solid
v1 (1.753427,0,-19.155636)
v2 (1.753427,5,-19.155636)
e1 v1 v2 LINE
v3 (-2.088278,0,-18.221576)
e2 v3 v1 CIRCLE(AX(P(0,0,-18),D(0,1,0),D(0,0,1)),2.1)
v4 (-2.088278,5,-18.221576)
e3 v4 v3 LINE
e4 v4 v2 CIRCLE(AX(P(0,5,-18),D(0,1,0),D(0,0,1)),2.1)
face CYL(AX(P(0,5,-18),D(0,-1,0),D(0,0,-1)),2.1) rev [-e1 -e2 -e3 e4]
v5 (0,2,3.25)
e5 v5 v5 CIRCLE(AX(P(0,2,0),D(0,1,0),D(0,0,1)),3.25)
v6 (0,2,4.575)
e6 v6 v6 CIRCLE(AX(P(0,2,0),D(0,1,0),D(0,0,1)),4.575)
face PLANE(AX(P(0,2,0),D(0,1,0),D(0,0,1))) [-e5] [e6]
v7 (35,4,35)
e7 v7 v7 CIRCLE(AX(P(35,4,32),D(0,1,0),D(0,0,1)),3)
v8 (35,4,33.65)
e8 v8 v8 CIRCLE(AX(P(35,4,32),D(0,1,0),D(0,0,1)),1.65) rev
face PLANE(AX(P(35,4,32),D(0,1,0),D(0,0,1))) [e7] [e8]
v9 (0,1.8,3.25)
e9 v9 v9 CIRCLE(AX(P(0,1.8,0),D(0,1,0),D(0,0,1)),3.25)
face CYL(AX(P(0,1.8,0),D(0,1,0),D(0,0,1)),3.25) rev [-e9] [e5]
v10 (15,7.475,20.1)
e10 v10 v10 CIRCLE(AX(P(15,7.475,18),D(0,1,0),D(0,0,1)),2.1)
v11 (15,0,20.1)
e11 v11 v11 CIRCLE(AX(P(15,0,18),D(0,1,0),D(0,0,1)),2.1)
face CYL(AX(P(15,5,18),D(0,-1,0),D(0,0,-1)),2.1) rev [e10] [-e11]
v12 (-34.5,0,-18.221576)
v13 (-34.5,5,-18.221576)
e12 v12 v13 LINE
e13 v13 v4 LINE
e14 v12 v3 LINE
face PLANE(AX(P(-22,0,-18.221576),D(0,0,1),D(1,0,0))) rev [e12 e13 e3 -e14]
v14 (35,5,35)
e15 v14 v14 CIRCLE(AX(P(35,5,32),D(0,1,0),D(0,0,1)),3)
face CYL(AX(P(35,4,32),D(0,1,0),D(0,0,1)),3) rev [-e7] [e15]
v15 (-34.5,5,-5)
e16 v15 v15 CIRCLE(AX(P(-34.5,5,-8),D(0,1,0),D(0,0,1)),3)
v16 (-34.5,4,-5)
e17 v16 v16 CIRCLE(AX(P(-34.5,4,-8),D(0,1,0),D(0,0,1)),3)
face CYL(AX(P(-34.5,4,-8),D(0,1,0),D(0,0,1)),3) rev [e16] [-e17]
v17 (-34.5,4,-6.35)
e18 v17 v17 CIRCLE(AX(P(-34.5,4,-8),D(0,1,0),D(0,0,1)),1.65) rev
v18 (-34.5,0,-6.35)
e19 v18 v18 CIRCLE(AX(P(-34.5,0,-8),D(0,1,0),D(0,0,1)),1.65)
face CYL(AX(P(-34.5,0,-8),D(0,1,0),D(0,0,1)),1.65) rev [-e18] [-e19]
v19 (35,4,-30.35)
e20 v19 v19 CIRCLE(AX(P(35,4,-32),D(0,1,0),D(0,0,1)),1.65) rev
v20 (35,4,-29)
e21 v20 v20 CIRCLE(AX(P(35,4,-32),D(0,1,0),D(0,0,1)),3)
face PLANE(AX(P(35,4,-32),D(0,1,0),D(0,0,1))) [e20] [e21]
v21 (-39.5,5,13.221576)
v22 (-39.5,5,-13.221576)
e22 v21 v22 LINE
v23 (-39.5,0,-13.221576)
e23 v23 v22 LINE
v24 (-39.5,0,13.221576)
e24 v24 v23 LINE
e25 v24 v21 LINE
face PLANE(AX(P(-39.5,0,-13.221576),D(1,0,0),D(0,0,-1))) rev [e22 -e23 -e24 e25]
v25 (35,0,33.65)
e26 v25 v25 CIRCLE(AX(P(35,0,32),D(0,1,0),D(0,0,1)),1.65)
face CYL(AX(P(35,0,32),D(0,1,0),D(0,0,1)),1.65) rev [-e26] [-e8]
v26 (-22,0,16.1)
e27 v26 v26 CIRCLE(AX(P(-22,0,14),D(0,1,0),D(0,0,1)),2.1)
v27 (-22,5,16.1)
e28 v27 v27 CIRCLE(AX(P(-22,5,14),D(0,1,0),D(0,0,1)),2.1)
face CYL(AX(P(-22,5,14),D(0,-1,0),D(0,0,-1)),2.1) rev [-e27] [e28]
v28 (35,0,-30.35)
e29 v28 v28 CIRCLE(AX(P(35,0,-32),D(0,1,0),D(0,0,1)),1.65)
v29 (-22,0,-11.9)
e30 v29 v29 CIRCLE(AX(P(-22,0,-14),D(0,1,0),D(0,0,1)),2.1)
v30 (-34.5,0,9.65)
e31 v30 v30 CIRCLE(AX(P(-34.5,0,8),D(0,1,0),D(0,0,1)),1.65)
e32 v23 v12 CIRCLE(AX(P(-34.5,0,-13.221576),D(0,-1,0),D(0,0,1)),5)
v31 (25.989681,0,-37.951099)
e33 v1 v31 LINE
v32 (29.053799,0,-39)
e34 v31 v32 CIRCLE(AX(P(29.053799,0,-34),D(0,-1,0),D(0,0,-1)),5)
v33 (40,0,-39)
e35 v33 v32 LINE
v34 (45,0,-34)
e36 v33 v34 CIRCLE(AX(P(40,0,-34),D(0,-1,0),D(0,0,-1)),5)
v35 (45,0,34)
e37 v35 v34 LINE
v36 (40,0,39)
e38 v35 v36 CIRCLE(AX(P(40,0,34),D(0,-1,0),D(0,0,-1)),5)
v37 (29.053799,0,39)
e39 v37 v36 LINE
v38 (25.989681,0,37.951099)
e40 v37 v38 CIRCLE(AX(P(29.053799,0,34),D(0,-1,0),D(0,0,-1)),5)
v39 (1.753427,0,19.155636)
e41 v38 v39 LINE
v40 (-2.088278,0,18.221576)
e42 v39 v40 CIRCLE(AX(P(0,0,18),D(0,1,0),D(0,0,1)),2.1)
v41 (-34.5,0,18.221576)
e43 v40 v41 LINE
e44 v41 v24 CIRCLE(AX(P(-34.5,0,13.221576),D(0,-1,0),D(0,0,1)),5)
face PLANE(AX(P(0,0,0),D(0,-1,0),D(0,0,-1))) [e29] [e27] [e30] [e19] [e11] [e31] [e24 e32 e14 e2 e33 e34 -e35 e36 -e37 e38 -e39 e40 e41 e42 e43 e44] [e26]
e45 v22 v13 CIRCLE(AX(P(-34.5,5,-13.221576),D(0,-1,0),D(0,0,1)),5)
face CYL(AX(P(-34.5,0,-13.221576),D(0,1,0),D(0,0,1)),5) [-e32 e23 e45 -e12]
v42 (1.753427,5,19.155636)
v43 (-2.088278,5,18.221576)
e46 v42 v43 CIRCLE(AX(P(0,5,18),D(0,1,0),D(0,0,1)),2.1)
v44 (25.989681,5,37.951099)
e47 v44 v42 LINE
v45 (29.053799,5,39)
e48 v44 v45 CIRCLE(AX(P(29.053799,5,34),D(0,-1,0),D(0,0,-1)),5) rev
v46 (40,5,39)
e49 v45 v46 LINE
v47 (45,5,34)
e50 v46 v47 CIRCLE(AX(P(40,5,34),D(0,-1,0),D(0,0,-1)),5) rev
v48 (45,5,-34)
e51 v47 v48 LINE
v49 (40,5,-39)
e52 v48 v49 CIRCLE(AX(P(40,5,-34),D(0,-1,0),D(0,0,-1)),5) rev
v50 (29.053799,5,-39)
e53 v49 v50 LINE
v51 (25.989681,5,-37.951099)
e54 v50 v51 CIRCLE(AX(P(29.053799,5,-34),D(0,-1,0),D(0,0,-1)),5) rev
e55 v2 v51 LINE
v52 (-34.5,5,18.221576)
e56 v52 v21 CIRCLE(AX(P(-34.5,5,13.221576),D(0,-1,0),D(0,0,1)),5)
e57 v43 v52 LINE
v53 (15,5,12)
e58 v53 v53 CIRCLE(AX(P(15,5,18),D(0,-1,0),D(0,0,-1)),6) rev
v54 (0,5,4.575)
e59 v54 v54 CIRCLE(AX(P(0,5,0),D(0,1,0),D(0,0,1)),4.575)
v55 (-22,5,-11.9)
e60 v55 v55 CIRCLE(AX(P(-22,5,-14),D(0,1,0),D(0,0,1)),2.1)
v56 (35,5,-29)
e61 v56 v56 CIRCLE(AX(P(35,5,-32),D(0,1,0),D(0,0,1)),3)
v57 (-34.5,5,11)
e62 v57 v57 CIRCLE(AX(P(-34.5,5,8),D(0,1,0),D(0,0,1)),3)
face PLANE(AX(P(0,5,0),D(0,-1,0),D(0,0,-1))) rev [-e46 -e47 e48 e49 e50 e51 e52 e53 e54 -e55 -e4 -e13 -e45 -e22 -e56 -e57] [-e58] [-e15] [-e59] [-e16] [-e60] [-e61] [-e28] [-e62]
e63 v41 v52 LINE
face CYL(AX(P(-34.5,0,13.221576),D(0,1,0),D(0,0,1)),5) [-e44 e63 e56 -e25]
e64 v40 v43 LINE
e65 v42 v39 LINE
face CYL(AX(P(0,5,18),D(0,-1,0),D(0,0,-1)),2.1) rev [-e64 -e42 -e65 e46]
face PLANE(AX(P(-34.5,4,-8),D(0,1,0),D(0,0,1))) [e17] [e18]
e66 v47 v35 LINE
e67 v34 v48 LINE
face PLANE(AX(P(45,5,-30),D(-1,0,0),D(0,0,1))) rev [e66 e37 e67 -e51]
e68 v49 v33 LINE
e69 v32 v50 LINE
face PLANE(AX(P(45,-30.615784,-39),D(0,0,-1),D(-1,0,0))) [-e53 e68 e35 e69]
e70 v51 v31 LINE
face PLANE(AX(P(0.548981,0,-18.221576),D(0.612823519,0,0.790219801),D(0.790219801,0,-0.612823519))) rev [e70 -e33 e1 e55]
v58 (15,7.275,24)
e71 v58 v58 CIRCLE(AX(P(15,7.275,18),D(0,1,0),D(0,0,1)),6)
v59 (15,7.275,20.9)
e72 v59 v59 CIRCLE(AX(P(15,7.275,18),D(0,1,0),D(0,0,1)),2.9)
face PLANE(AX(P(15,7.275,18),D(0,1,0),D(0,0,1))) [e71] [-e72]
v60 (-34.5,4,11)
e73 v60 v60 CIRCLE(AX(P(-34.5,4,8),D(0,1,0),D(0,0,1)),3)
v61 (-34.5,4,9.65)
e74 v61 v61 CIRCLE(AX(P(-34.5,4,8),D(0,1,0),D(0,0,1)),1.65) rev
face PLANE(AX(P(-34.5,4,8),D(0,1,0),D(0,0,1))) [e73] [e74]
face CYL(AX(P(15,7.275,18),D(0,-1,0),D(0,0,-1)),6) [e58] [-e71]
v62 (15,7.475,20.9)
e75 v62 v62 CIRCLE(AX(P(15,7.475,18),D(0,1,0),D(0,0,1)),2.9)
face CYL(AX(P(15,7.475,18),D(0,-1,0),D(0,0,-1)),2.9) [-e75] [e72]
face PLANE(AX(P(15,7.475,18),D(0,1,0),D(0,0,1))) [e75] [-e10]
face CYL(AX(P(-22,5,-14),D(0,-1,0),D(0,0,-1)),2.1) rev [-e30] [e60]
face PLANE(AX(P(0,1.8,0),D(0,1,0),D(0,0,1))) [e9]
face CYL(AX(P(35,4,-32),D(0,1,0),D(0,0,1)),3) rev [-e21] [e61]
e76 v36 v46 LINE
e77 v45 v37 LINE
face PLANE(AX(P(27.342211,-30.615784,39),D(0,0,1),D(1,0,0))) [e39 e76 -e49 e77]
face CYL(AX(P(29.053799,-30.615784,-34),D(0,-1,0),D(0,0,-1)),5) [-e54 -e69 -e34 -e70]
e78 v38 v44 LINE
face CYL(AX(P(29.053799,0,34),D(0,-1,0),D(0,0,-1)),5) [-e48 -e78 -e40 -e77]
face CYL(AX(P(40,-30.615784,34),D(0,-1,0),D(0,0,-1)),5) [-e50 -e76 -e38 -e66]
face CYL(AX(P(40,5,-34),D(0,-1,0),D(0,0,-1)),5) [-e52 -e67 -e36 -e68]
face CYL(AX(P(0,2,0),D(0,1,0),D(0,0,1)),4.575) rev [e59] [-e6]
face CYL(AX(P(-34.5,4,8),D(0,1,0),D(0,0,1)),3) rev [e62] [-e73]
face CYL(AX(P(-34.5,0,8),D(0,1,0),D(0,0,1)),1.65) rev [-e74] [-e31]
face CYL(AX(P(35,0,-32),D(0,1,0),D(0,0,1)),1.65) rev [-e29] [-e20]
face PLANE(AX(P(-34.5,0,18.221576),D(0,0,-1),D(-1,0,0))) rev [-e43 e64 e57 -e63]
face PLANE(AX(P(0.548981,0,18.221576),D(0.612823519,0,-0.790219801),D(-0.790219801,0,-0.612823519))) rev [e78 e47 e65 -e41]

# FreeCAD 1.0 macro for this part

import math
import FreeCAD as App
import Part
import Sketcher
from FreeCAD import Vector


def edges_at(feature, points):
    """Names of the edges that pass closest to the given points."""
    edges = feature.Shape.Edges
    near = lambda p: min(range(len(edges)), key=lambda i: edges[i].distToShape(Part.Vertex(*p))[0])
    return sorted({f"Edge{near(p) + 1}" for p in points})


def add_polygon(sketch, points):
    """Adds a closed chain of lines whose ends are joined by coincident constraints."""
    first, n = sketch.GeometryCount, len(points)
    for a, b in zip(points, points[1:] + points[:1]):
        sketch.addGeometry(Part.LineSegment(App.Vector(*a, 0), App.Vector(*b, 0)), False)
    for i in range(n):
        sketch.addConstraint(Sketcher.Constraint("Coincident", first + i, 2, first + (i + 1) % n, 1))

doc = App.newDocument("Part")
body = doc.addObject("PartDesign::Body", "Body")

# Sketch on XZ plane
sketch1 = body.newObject("Sketcher::SketchObject", "Sketch")
sketch1.AttachmentSupport = (doc.getObject("XZ_Plane"), [""])
sketch1.MapMode = "FlatFace"
add_polygon(sketch1, [(-70, -30), (-70, 30), (45, 30), (45, -30)])  # lines 0-3
sketch1.addGeometry(Part.Circle(Vector(-22, 14, 0), Vector(0, 0, 1), 2.1), False)  # 4
sketch1.addGeometry(Part.Circle(Vector(0, 18, 0), Vector(0, 0, 1), 2.1), False)  # 5
sketch1.addGeometry(Part.Circle(Vector(15, 18, 0), Vector(0, 0, 1), 2.1), False)  # 6
sketch1.addGeometry(Part.Circle(Vector(-22, -14, 0), Vector(0, 0, 1), 2.1), False)  # 7
sketch1.addGeometry(Part.Circle(Vector(0, -18, 0), Vector(0, 0, 1), 2.1), False)  # 8
sketch1.addConstraint(Sketcher.Constraint("Vertical", 0))
sketch1.addConstraint(Sketcher.Constraint("Horizontal", 1))
sketch1.addConstraint(Sketcher.Constraint("Vertical", 2))
sketch1.addConstraint(Sketcher.Constraint("Horizontal", 3))
sketch1.addConstraint(Sketcher.Constraint("Equal", 4, 5))
sketch1.addConstraint(Sketcher.Constraint("Equal", 5, 6))
sketch1.addConstraint(Sketcher.Constraint("Equal", 6, 7))
sketch1.addConstraint(Sketcher.Constraint("Equal", 7, 8))
sketch1.addConstraint(Sketcher.Constraint("Symmetric", 5, 3, 8, 3, -1, 1))
sketch1.addConstraint(Sketcher.Constraint("Symmetric", 4, 3, 7, 3, -1))
sketch1.addConstraint(Sketcher.Constraint("PointOnObject", 5, 3, -2))
sketch1.addConstraint(Sketcher.Constraint("Horizontal", 5, 3, 6, 3))
sketch1.addConstraint(Sketcher.Constraint("Diameter", 4, 4.2))
sketch1.addConstraint(Sketcher.Constraint("DistanceX", 1, 1, 1, 2, 115.0))
sketch1.addConstraint(Sketcher.Constraint("DistanceY", 0, 1, 0, 2, 60.0))
sketch1.addConstraint(Sketcher.Constraint("DistanceX", 4, 3, -1, 1, 22.0))
sketch1.addConstraint(Sketcher.Constraint("DistanceY", -1, 1, 4, 3, 14.0))
sketch1.addConstraint(Sketcher.Constraint("DistanceY", -1, 1, 5, 3, 18.0))
sketch1.addConstraint(Sketcher.Constraint("DistanceX", -1, 1, 6, 3, 15.0))
sketch1.addConstraint(Sketcher.Constraint("DistanceX", 0, 2, -1, 1, 70.0))
sketch1.addConstraint(Sketcher.Constraint("DistanceY", -1, 1, 0, 2, 30.0))
pad1 = body.newObject("PartDesign::Pad", "Pad")
pad1.Profile = sketch1
pad1.Length = 5
pad1.Reversed = True

# Sketch on XZ plane
sketch2 = body.newObject("Sketcher::SketchObject", "Sketch001")
sketch2.AttachmentSupport = (doc.getObject("XZ_Plane"), [""])
sketch2.MapMode = "FlatFace"
sketch2.AttachmentOffset = App.Placement(Vector(0, 0, -5), App.Rotation())
sketch2.addGeometry(Part.Circle(Vector(0, 0, 0), Vector(0, 0, 1), 4.575), False)
sketch2.addConstraint(Sketcher.Constraint("Coincident", 0, 3, -1, 1))
sketch2.addConstraint(Sketcher.Constraint("Diameter", 0, 9.15))
pocket1 = body.newObject("PartDesign::Pocket", "Pocket")
pocket1.Profile = sketch2
pocket1.Length = 3
pocket1.Reversed = True

# Sketch on XZ plane
sketch3 = body.newObject("Sketcher::SketchObject", "Sketch002")
sketch3.AttachmentSupport = (doc.getObject("XZ_Plane"), [""])
sketch3.MapMode = "FlatFace"
sketch3.AttachmentOffset = App.Placement(Vector(0, 0, -2), App.Rotation())
sketch3.addGeometry(Part.Circle(Vector(0, 0, 0), Vector(0, 0, 1), 3.25), False)
sketch3.addConstraint(Sketcher.Constraint("Coincident", 0, 3, -1, 1))
sketch3.addConstraint(Sketcher.Constraint("Diameter", 0, 6.5))
pocket2 = body.newObject("PartDesign::Pocket", "Pocket001")
pocket2.Profile = sketch3
pocket2.Length = 0.2
pocket2.Reversed = True

# Sketch on XZ plane
sketch4 = body.newObject("Sketcher::SketchObject", "Sketch003")
sketch4.AttachmentSupport = (doc.getObject("XZ_Plane"), [""])
sketch4.MapMode = "FlatFace"
sketch4.AttachmentOffset = App.Placement(Vector(0, 0, -5), App.Rotation())
sketch4.addGeometry(Part.Circle(Vector(-34.5, 8, 0), Vector(0, 0, 1), 1.65), False)
sketch4.addGeometry(Part.Circle(Vector(-34.5, -8, 0), Vector(0, 0, 1), 1.65), False)
sketch4.addConstraint(Sketcher.Constraint("Equal", 0, 1))
sketch4.addConstraint(Sketcher.Constraint("Symmetric", 0, 3, 1, 3, -1))
sketch4.addConstraint(Sketcher.Constraint("Diameter", 0, 3.3))
sketch4.addConstraint(Sketcher.Constraint("DistanceY", -1, 1, 0, 3, 8.0))
sketch4.addConstraint(Sketcher.Constraint("DistanceX", 0, 3, -1, 1, 34.5))
pocket3 = body.newObject("PartDesign::Pocket", "Pocket002")
pocket3.Profile = sketch4
pocket3.Type = "ThroughAll"
pocket3.Reversed = True

# Sketch on XZ plane
sketch5 = body.newObject("Sketcher::SketchObject", "Sketch004")
sketch5.AttachmentSupport = (doc.getObject("XZ_Plane"), [""])
sketch5.MapMode = "FlatFace"
sketch5.AttachmentOffset = App.Placement(Vector(0, 0, -5), App.Rotation())
sketch5.addGeometry(Part.ArcOfCircle(Part.Circle(Vector(-34.5, -13.221576, 0), Vector(0, 0, 1), 5), math.radians(180), math.radians(270)), False)
sketch5.addGeometry(Part.LineSegment(Vector(-34.5, -18.221576, 0), Vector(0.548981, -18.221576, 0)), False)
sketch5.addGeometry(Part.LineSegment(Vector(0.548981, -18.221576, 0), Vector(26.801199, -38.58044, 0)), False)
sketch5.addGeometry(Part.LineSegment(Vector(26.801199, -38.58044, 0), Vector(-22, -30, 0)), False)
sketch5.addGeometry(Part.LineSegment(Vector(-22, -30, 0), Vector(-70, -30, 0)), False)
sketch5.addGeometry(Part.LineSegment(Vector(-70, -30, 0), Vector(-70, 30, 0)), False)
sketch5.addGeometry(Part.LineSegment(Vector(-70, 30, 0), Vector(-22, 30, 0)), False)
sketch5.addGeometry(Part.LineSegment(Vector(-22, 30, 0), Vector(26.801199, 38.58044, 0)), False)
sketch5.addGeometry(Part.LineSegment(Vector(26.801199, 38.58044, 0), Vector(0.548981, 18.221576, 0)), False)
sketch5.addGeometry(Part.LineSegment(Vector(0.548981, 18.221576, 0), Vector(-34.5, 18.221576, 0)), False)
sketch5.addGeometry(Part.ArcOfCircle(Part.Circle(Vector(-34.5, 13.221576, 0), Vector(0, 0, 1), 5), math.radians(90), math.radians(180)), False)
sketch5.addGeometry(Part.LineSegment(Vector(-39.5, 13.221576, 0), Vector(-39.5, -13.221576, 0)), False)
sketch5.addConstraint(Sketcher.Constraint("Tangent", 0, 2, 1, 1))
sketch5.addConstraint(Sketcher.Constraint("Coincident", 1, 2, 2, 1))
sketch5.addConstraint(Sketcher.Constraint("Coincident", 2, 2, 3, 1))
sketch5.addConstraint(Sketcher.Constraint("Coincident", 3, 2, 4, 1))
sketch5.addConstraint(Sketcher.Constraint("Coincident", 4, 2, 5, 1))
sketch5.addConstraint(Sketcher.Constraint("Coincident", 5, 2, 6, 1))
sketch5.addConstraint(Sketcher.Constraint("Coincident", 6, 2, 7, 1))
sketch5.addConstraint(Sketcher.Constraint("Coincident", 7, 2, 8, 1))
sketch5.addConstraint(Sketcher.Constraint("Coincident", 8, 2, 9, 1))
sketch5.addConstraint(Sketcher.Constraint("Tangent", 9, 2, 10, 1))
sketch5.addConstraint(Sketcher.Constraint("Tangent", 10, 2, 11, 1))
sketch5.addConstraint(Sketcher.Constraint("Tangent", 11, 2, 0, 1))
sketch5.addConstraint(Sketcher.Constraint("Horizontal", 1))
sketch5.addConstraint(Sketcher.Constraint("Horizontal", 4))
sketch5.addConstraint(Sketcher.Constraint("Vertical", 5))
sketch5.addConstraint(Sketcher.Constraint("Horizontal", 6))
sketch5.addConstraint(Sketcher.Constraint("Horizontal", 9))
sketch5.addConstraint(Sketcher.Constraint("Vertical", 11))
sketch5.addConstraint(Sketcher.Constraint("Equal", 0, 10))
sketch5.addConstraint(Sketcher.Constraint("Symmetric", 3, 2, 6, 2, -1))
sketch5.addConstraint(Sketcher.Constraint("Symmetric", 2, 2, 7, 2, -1))
sketch5.addConstraint(Sketcher.Constraint("Symmetric", 1, 2, 8, 2, -1))
sketch5.addConstraint(Sketcher.Constraint("Radius", 0, 5.0))
sketch5.addConstraint(Sketcher.Constraint("DistanceX", 4, 2, 4, 1, 48.0))
sketch5.addConstraint(Sketcher.Constraint("DistanceY", 5, 1, 5, 2, 60.0))
sketch5.addConstraint(Sketcher.Constraint("DistanceX", 3, 2, -1, 1, 22.0))
sketch5.addConstraint(Sketcher.Constraint("DistanceX", 0, 3, -1, 1, 34.5))
sketch5.addConstraint(Sketcher.Constraint("DistanceX", 1, 1, 1, 2, 35.048981))
sketch5.addConstraint(Sketcher.Constraint("DistanceX", -1, 1, 2, 2, 26.801199))
sketch5.addConstraint(Sketcher.Constraint("DistanceY", 11, 2, 11, 1, 26.443152))
sketch5.addConstraint(Sketcher.Constraint("DistanceY", 2, 2, -1, 1, 38.58044))
pocket4 = body.newObject("PartDesign::Pocket", "Pocket003")
pocket4.Profile = sketch5
pocket4.Type = "ThroughAll"
pocket4.Reversed = True

# Sketch on XZ plane
sketch6 = body.newObject("Sketcher::SketchObject", "Sketch005")
sketch6.AttachmentSupport = (doc.getObject("XZ_Plane"), [""])
sketch6.MapMode = "FlatFace"
sketch6.AttachmentOffset = App.Placement(Vector(0, 0, -5), App.Rotation())
add_polygon(sketch6, [(27.342211, -39), (15.736948, -30), (45, -30), (45, -39)])  # lines 0-3
add_polygon(sketch6, [(45, 30), (15.736948, 30), (27.342211, 39), (45, 39)])  # lines 4-7
sketch6.addConstraint(Sketcher.Constraint("Horizontal", 1))
sketch6.addConstraint(Sketcher.Constraint("Vertical", 2))
sketch6.addConstraint(Sketcher.Constraint("Horizontal", 3))
sketch6.addConstraint(Sketcher.Constraint("Horizontal", 4))
sketch6.addConstraint(Sketcher.Constraint("Horizontal", 6))
sketch6.addConstraint(Sketcher.Constraint("Vertical", 7))
sketch6.addConstraint(Sketcher.Constraint("Symmetric", 0, 2, 4, 2, -1))
sketch6.addConstraint(Sketcher.Constraint("Symmetric", 3, 2, 5, 2, -1))
sketch6.addConstraint(Sketcher.Constraint("Vertical", 2, 2, 6, 2))
sketch6.addConstraint(Sketcher.Constraint("DistanceY", 2, 2, 2, 1, 9.0))
sketch6.addConstraint(Sketcher.Constraint("DistanceY", 0, 2, -1, 1, 30.0))
sketch6.addConstraint(Sketcher.Constraint("DistanceX", -1, 1, 1, 2, 45.0))
sketch6.addConstraint(Sketcher.Constraint("DistanceX", 1, 1, 1, 2, 29.263052))
sketch6.addConstraint(Sketcher.Constraint("DistanceX", 3, 2, 3, 1, 17.657789))
pad2 = body.newObject("PartDesign::Pad", "Pad001")
pad2.Profile = sketch6
pad2.Length = 5

# Sketch on XZ plane
sketch7 = body.newObject("Sketcher::SketchObject", "Sketch006")
sketch7.AttachmentSupport = (doc.getObject("XZ_Plane"), [""])
sketch7.MapMode = "FlatFace"
sketch7.AttachmentOffset = App.Placement(Vector(0, 0, -5), App.Rotation())
sketch7.addGeometry(Part.Circle(Vector(35, -32, 0), Vector(0, 0, 1), 1.65), False)
sketch7.addGeometry(Part.Circle(Vector(35, 32, 0), Vector(0, 0, 1), 1.65), False)
sketch7.addConstraint(Sketcher.Constraint("Equal", 0, 1))
sketch7.addConstraint(Sketcher.Constraint("Symmetric", 0, 3, 1, 3, -1))
sketch7.addConstraint(Sketcher.Constraint("Diameter", 0, 3.3))
sketch7.addConstraint(Sketcher.Constraint("DistanceX", -1, 1, 0, 3, 35.0))
sketch7.addConstraint(Sketcher.Constraint("DistanceY", 0, 3, -1, 1, 32.0))
pocket5 = body.newObject("PartDesign::Pocket", "Pocket004")
pocket5.Profile = sketch7
pocket5.Type = "ThroughAll"
pocket5.Reversed = True
doc.recompute()

fillet = body.newObject("PartDesign::Fillet", "Fillet")
fillet.Base = (pocket5, edges_at(pocket5, [
    (45, 2.5, -39),
    (27.342, 2.5, -39),
    (27.342, 2.5, 39),
    (45, 2.5, 39),
]))
fillet.Radius = 5

# Sketch on XZ plane
sketch8 = body.newObject("Sketcher::SketchObject", "Sketch007")
sketch8.AttachmentSupport = (doc.getObject("XZ_Plane"), [""])
sketch8.MapMode = "FlatFace"
sketch8.AttachmentOffset = App.Placement(Vector(0, 0, -5), App.Rotation())
sketch8.addGeometry(Part.Circle(Vector(15, 18, 0), Vector(0, 0, 1), 6), False)
sketch8.addGeometry(Part.Circle(Vector(15, 18, 0), Vector(0, 0, 1), 2.1), False)
sketch8.addConstraint(Sketcher.Constraint("Coincident", 1, 3, 0, 3))
sketch8.addConstraint(Sketcher.Constraint("Diameter", 0, 12.0))
sketch8.addConstraint(Sketcher.Constraint("Diameter", 1, 4.2))
sketch8.addConstraint(Sketcher.Constraint("DistanceX", -1, 1, 0, 3, 15.0))
sketch8.addConstraint(Sketcher.Constraint("DistanceY", -1, 1, 0, 3, 18.0))
pad3 = body.newObject("PartDesign::Pad", "Pad002")
pad3.Profile = sketch8
pad3.Length = 2.275
pad3.Reversed = True

# Sketch on XZ plane
sketch9 = body.newObject("Sketcher::SketchObject", "Sketch008")
sketch9.AttachmentSupport = (doc.getObject("XZ_Plane"), [""])
sketch9.MapMode = "FlatFace"
sketch9.AttachmentOffset = App.Placement(Vector(0, 0, -7.275), App.Rotation())
sketch9.addGeometry(Part.Circle(Vector(15, 18, 0), Vector(0, 0, 1), 2.9), False)
sketch9.addGeometry(Part.Circle(Vector(15, 18, 0), Vector(0, 0, 1), 2.1), False)
sketch9.addConstraint(Sketcher.Constraint("Coincident", 1, 3, 0, 3))
sketch9.addConstraint(Sketcher.Constraint("Diameter", 0, 5.8))
sketch9.addConstraint(Sketcher.Constraint("Diameter", 1, 4.2))
sketch9.addConstraint(Sketcher.Constraint("DistanceX", -1, 1, 0, 3, 15.0))
sketch9.addConstraint(Sketcher.Constraint("DistanceY", -1, 1, 0, 3, 18.0))
pad4 = body.newObject("PartDesign::Pad", "Pad003")
pad4.Profile = sketch9
pad4.Length = 0.2
pad4.Reversed = True

# Sketch on XZ plane
sketch10 = body.newObject("Sketcher::SketchObject", "Sketch009")
sketch10.AttachmentSupport = (doc.getObject("XZ_Plane"), [""])
sketch10.MapMode = "FlatFace"
sketch10.AttachmentOffset = App.Placement(Vector(0, 0, -5), App.Rotation())
sketch10.addGeometry(Part.Circle(Vector(-34.5, -8, 0), Vector(0, 0, 1), 3), False)
sketch10.addGeometry(Part.Circle(Vector(-34.5, 8, 0), Vector(0, 0, 1), 3), False)
sketch10.addGeometry(Part.Circle(Vector(35, 32, 0), Vector(0, 0, 1), 3), False)
sketch10.addGeometry(Part.Circle(Vector(35, -32, 0), Vector(0, 0, 1), 3), False)
sketch10.addConstraint(Sketcher.Constraint("Equal", 0, 1))
sketch10.addConstraint(Sketcher.Constraint("Equal", 1, 2))
sketch10.addConstraint(Sketcher.Constraint("Equal", 2, 3))
sketch10.addConstraint(Sketcher.Constraint("Symmetric", 0, 3, 1, 3, -1))
sketch10.addConstraint(Sketcher.Constraint("Symmetric", 2, 3, 3, 3, -1))
sketch10.addConstraint(Sketcher.Constraint("Diameter", 0, 6.0))
sketch10.addConstraint(Sketcher.Constraint("DistanceY", 0, 3, -1, 1, 8.0))
sketch10.addConstraint(Sketcher.Constraint("DistanceX", -1, 1, 2, 3, 35.0))
sketch10.addConstraint(Sketcher.Constraint("DistanceY", -1, 1, 2, 3, 32.0))
sketch10.addConstraint(Sketcher.Constraint("DistanceX", 0, 3, -1, 1, 34.5))
pocket6 = body.newObject("PartDesign::Pocket", "Pocket005")
pocket6.Profile = sketch10
pocket6.Length = 1
pocket6.Reversed = True

doc.recompute()
